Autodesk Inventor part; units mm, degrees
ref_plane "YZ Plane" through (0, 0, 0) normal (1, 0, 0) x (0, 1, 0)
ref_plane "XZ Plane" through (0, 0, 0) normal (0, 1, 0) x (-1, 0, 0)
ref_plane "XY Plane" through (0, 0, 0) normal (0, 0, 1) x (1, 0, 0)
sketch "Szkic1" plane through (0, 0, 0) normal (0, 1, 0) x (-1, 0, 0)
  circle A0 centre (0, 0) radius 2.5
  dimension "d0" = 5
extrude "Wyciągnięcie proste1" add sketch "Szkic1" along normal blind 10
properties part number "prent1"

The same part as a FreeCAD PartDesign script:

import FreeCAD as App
import Part
import Sketcher
from FreeCAD import Vector

doc = App.newDocument("Part")
body = doc.addObject("PartDesign::Body", "Body")

sketch1 = doc.addObject("Sketcher::SketchObject", "Sketch")
body.addObject(sketch1)
sketch1.AttachmentSupport = (doc.XZ_Plane, [""])
sketch1.MapMode = "FlatFace"
sketch1.addGeometry(Part.Circle(Vector(0, 0, 0), Vector(0, 0, 1), 2.5), False)
sketch1.addConstraint(Sketcher.Constraint("Coincident", 0, 3, -1, 1))
sketch1.addConstraint(Sketcher.Constraint("Diameter", 0, 5.0))
pad1 = doc.addObject("PartDesign::Pad", "Pad")
body.addObject(pad1)
pad1.Profile = sketch1
pad1.Length = 10
pad1.Reversed = True

doc.recompute()
